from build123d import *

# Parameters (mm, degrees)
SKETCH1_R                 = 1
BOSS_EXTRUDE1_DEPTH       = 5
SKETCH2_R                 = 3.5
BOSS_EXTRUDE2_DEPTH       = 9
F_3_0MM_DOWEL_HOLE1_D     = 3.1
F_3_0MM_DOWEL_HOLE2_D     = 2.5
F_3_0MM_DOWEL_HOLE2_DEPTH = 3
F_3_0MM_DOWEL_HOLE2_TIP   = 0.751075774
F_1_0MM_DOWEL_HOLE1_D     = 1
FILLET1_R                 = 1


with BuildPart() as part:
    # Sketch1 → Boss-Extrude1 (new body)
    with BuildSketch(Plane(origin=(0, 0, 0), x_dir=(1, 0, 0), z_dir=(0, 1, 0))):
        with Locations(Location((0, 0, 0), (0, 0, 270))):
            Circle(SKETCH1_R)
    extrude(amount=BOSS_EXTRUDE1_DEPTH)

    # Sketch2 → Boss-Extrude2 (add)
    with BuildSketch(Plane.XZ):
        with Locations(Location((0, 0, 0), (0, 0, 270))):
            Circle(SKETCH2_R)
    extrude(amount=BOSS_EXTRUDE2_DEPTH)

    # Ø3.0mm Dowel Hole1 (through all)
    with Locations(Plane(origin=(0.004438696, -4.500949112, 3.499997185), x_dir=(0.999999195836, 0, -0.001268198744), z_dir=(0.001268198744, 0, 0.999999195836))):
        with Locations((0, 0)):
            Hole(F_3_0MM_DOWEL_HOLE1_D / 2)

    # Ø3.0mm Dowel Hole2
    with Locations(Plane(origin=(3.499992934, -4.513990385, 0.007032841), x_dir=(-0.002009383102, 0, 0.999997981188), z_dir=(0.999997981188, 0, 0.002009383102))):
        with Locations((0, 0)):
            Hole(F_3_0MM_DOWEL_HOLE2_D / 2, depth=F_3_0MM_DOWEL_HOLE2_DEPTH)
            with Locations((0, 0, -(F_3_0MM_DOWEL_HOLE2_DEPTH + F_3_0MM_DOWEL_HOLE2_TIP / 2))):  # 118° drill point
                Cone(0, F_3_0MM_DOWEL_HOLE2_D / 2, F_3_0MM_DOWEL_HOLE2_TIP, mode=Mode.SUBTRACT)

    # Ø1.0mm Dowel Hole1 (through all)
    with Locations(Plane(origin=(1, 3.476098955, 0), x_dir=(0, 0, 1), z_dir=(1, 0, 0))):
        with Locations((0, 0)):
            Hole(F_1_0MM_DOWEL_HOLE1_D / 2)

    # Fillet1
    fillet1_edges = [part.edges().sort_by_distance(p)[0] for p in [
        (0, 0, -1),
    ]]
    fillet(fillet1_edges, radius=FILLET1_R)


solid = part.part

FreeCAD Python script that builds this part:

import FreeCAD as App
import Part
import Sketcher
Q = App.Units.Quantity


def edges_at(feature, points):
    """Names of the edges that pass closest to the given points."""
    edges = feature.Shape.Edges
    near = lambda p: min(range(len(edges)), key=lambda i: edges[i].distToShape(Part.Vertex(*p))[0])
    return sorted({f"Edge{near(p) + 1}" for p in points})

doc = App.newDocument("Part")
params = doc.addObject("Spreadsheet::Sheet", "Params")
for row, (alias, value) in enumerate([
    ("sketch1_diameter", "2 mm"),
    ("pad1_length", "5 mm"),
    ("sketch2_diameter", "7 mm"),
    ("pad2_length", "9 mm"),
    ("sketch3_diameter", "3.1 mm"),
    ("hole_diameter", "3.1 mm"),
    ("sketch4_diameter", "2.5 mm"),
    ("hole2_diameter", "2.5 mm"),
    ("hole2_depth", "3 mm"),
    ("sketch5_diameter", "1 mm"),
    ("hole3_diameter", "1 mm"),
    ("fillet_radius", "1 mm"),
], start=1):
    params.set(f"A{row}", alias)
    params.set(f"B{row}", "=" + value)
    params.setAlias(f"B{row}", alias)

body = doc.addObject("PartDesign::Body", "Body")

# Sketch on XZ plane
sketch1 = body.newObject("Sketcher::SketchObject", "Sketch")
sketch1.AttachmentSupport = (doc.getObject("XZ_Plane"), [""])
sketch1.MapMode = "FlatFace"
sketch1.addGeometry(Part.Circle(App.Vector(0, 0, 0), App.Vector(0, 0, 1), 1), False)
sketch1.addConstraint(Sketcher.Constraint("Coincident", 0, 3, -1, 1))
sketch1.addConstraint(Sketcher.Constraint("Diameter", 0, Q("2 mm")))
sketch1.setExpression("Constraints[1]", "Params.sketch1_diameter")
pad1 = body.newObject("PartDesign::Pad", "Pad")
pad1.Profile = sketch1
pad1.setExpression("Length", "Params.pad1_length")
pad1.Reversed = True

# Sketch on XZ plane
sketch2 = body.newObject("Sketcher::SketchObject", "Sketch001")
sketch2.AttachmentSupport = (doc.getObject("XZ_Plane"), [""])
sketch2.MapMode = "FlatFace"
sketch2.addGeometry(Part.Circle(App.Vector(0, 0, 0), App.Vector(0, 0, 1), 3.5), False)
sketch2.addConstraint(Sketcher.Constraint("Coincident", 0, 3, -1, 1))
sketch2.addConstraint(Sketcher.Constraint("Diameter", 0, Q("7 mm")))
sketch2.setExpression("Constraints[1]", "Params.sketch2_diameter")
pad2 = body.newObject("PartDesign::Pad", "Pad001")
pad2.Profile = sketch2
pad2.setExpression("Length", "Params.pad2_length")

# Sketch on an angled plane
sketch3 = body.newObject("Sketcher::SketchObject", "Sketch002")
sketch3.Placement = App.Placement(App.Vector(0.004439, 0, 3.499997), App.Rotation(App.Vector(0.999999196, 0, -0.001268199), App.Vector(0, 1, 0), App.Vector(0.001268199, 0, 0.999999196), "ZXY"))
sketch3.addGeometry(Part.Circle(App.Vector(0, -4.500949, 0), App.Vector(0, 0, 1), 1.55), False)
sketch3.addConstraint(Sketcher.Constraint("PointOnObject", 0, 3, -2))
sketch3.addConstraint(Sketcher.Constraint("Diameter", 0, Q("3.1 mm")))
sketch3.addConstraint(Sketcher.Constraint("DistanceY", 0, 3, -1, 1, Q("4.500949 mm")))
sketch3.setExpression("Constraints[1]", "Params.sketch3_diameter")
doc.recompute()
hole = body.newObject("PartDesign::Hole", "Hole")
hole.Profile = sketch3
hole.ThreadType = "None"
hole.setExpression("Diameter", "Params.hole_diameter")
hole.DepthType = "ThroughAll"

# Sketch on an angled plane
sketch4 = body.newObject("Sketcher::SketchObject", "Sketch003")
sketch4.Placement = App.Placement(App.Vector(3.499993, 0, 0.007033), App.Rotation(App.Vector(-0.002009383, 0, 0.999997981), App.Vector(0, -1, 0), App.Vector(0.999997981, 0, 0.002009383), "ZXY"))
sketch4.addGeometry(Part.Circle(App.Vector(0, 4.51399, 0), App.Vector(0, 0, 1), 1.25), False)
sketch4.addConstraint(Sketcher.Constraint("PointOnObject", 0, 3, -2))
sketch4.addConstraint(Sketcher.Constraint("Diameter", 0, Q("2.5 mm")))
sketch4.addConstraint(Sketcher.Constraint("DistanceY", -1, 1, 0, 3, Q("4.51399 mm")))
sketch4.setExpression("Constraints[1]", "Params.sketch4_diameter")
doc.recompute()
hole2 = body.newObject("PartDesign::Hole", "Hole001")
hole2.Profile = sketch4
hole2.ThreadType = "None"
hole2.setExpression("Diameter", "Params.hole2_diameter")
hole2.DepthType = "Dimension"
hole2.setExpression("Depth", "Params.hole2_depth")
hole2.DrillPoint = "Angled"
hole2.DrillPointAngle = 118

# Sketch on YZ plane
sketch5 = body.newObject("Sketcher::SketchObject", "Sketch004")
sketch5.AttachmentSupport = (doc.getObject("YZ_Plane"), [""])
sketch5.MapMode = "FlatFace"
sketch5.AttachmentOffset = App.Placement(App.Vector(0, 0, 1), App.Rotation())
sketch5.addGeometry(Part.Circle(App.Vector(3.476099, 0, 0), App.Vector(0, 0, 1), 0.5), False)
sketch5.addConstraint(Sketcher.Constraint("PointOnObject", 0, 3, -1))
sketch5.addConstraint(Sketcher.Constraint("Diameter", 0, Q("1 mm")))
sketch5.addConstraint(Sketcher.Constraint("DistanceX", -1, 1, 0, 3, Q("3.476099 mm")))
sketch5.setExpression("Constraints[1]", "Params.sketch5_diameter")
doc.recompute()
hole3 = body.newObject("PartDesign::Hole", "Hole002")
hole3.Profile = sketch5
hole3.ThreadType = "None"
hole3.setExpression("Diameter", "Params.hole3_diameter")
hole3.DepthType = "ThroughAll"
doc.recompute()

fillet = body.newObject("PartDesign::Fillet", "Fillet")
fillet.Base = (hole3, edges_at(hole3, [(0, 0, -1)]))
fillet.setExpression("Radius", "Params.fillet_radius")

doc.recompute()
